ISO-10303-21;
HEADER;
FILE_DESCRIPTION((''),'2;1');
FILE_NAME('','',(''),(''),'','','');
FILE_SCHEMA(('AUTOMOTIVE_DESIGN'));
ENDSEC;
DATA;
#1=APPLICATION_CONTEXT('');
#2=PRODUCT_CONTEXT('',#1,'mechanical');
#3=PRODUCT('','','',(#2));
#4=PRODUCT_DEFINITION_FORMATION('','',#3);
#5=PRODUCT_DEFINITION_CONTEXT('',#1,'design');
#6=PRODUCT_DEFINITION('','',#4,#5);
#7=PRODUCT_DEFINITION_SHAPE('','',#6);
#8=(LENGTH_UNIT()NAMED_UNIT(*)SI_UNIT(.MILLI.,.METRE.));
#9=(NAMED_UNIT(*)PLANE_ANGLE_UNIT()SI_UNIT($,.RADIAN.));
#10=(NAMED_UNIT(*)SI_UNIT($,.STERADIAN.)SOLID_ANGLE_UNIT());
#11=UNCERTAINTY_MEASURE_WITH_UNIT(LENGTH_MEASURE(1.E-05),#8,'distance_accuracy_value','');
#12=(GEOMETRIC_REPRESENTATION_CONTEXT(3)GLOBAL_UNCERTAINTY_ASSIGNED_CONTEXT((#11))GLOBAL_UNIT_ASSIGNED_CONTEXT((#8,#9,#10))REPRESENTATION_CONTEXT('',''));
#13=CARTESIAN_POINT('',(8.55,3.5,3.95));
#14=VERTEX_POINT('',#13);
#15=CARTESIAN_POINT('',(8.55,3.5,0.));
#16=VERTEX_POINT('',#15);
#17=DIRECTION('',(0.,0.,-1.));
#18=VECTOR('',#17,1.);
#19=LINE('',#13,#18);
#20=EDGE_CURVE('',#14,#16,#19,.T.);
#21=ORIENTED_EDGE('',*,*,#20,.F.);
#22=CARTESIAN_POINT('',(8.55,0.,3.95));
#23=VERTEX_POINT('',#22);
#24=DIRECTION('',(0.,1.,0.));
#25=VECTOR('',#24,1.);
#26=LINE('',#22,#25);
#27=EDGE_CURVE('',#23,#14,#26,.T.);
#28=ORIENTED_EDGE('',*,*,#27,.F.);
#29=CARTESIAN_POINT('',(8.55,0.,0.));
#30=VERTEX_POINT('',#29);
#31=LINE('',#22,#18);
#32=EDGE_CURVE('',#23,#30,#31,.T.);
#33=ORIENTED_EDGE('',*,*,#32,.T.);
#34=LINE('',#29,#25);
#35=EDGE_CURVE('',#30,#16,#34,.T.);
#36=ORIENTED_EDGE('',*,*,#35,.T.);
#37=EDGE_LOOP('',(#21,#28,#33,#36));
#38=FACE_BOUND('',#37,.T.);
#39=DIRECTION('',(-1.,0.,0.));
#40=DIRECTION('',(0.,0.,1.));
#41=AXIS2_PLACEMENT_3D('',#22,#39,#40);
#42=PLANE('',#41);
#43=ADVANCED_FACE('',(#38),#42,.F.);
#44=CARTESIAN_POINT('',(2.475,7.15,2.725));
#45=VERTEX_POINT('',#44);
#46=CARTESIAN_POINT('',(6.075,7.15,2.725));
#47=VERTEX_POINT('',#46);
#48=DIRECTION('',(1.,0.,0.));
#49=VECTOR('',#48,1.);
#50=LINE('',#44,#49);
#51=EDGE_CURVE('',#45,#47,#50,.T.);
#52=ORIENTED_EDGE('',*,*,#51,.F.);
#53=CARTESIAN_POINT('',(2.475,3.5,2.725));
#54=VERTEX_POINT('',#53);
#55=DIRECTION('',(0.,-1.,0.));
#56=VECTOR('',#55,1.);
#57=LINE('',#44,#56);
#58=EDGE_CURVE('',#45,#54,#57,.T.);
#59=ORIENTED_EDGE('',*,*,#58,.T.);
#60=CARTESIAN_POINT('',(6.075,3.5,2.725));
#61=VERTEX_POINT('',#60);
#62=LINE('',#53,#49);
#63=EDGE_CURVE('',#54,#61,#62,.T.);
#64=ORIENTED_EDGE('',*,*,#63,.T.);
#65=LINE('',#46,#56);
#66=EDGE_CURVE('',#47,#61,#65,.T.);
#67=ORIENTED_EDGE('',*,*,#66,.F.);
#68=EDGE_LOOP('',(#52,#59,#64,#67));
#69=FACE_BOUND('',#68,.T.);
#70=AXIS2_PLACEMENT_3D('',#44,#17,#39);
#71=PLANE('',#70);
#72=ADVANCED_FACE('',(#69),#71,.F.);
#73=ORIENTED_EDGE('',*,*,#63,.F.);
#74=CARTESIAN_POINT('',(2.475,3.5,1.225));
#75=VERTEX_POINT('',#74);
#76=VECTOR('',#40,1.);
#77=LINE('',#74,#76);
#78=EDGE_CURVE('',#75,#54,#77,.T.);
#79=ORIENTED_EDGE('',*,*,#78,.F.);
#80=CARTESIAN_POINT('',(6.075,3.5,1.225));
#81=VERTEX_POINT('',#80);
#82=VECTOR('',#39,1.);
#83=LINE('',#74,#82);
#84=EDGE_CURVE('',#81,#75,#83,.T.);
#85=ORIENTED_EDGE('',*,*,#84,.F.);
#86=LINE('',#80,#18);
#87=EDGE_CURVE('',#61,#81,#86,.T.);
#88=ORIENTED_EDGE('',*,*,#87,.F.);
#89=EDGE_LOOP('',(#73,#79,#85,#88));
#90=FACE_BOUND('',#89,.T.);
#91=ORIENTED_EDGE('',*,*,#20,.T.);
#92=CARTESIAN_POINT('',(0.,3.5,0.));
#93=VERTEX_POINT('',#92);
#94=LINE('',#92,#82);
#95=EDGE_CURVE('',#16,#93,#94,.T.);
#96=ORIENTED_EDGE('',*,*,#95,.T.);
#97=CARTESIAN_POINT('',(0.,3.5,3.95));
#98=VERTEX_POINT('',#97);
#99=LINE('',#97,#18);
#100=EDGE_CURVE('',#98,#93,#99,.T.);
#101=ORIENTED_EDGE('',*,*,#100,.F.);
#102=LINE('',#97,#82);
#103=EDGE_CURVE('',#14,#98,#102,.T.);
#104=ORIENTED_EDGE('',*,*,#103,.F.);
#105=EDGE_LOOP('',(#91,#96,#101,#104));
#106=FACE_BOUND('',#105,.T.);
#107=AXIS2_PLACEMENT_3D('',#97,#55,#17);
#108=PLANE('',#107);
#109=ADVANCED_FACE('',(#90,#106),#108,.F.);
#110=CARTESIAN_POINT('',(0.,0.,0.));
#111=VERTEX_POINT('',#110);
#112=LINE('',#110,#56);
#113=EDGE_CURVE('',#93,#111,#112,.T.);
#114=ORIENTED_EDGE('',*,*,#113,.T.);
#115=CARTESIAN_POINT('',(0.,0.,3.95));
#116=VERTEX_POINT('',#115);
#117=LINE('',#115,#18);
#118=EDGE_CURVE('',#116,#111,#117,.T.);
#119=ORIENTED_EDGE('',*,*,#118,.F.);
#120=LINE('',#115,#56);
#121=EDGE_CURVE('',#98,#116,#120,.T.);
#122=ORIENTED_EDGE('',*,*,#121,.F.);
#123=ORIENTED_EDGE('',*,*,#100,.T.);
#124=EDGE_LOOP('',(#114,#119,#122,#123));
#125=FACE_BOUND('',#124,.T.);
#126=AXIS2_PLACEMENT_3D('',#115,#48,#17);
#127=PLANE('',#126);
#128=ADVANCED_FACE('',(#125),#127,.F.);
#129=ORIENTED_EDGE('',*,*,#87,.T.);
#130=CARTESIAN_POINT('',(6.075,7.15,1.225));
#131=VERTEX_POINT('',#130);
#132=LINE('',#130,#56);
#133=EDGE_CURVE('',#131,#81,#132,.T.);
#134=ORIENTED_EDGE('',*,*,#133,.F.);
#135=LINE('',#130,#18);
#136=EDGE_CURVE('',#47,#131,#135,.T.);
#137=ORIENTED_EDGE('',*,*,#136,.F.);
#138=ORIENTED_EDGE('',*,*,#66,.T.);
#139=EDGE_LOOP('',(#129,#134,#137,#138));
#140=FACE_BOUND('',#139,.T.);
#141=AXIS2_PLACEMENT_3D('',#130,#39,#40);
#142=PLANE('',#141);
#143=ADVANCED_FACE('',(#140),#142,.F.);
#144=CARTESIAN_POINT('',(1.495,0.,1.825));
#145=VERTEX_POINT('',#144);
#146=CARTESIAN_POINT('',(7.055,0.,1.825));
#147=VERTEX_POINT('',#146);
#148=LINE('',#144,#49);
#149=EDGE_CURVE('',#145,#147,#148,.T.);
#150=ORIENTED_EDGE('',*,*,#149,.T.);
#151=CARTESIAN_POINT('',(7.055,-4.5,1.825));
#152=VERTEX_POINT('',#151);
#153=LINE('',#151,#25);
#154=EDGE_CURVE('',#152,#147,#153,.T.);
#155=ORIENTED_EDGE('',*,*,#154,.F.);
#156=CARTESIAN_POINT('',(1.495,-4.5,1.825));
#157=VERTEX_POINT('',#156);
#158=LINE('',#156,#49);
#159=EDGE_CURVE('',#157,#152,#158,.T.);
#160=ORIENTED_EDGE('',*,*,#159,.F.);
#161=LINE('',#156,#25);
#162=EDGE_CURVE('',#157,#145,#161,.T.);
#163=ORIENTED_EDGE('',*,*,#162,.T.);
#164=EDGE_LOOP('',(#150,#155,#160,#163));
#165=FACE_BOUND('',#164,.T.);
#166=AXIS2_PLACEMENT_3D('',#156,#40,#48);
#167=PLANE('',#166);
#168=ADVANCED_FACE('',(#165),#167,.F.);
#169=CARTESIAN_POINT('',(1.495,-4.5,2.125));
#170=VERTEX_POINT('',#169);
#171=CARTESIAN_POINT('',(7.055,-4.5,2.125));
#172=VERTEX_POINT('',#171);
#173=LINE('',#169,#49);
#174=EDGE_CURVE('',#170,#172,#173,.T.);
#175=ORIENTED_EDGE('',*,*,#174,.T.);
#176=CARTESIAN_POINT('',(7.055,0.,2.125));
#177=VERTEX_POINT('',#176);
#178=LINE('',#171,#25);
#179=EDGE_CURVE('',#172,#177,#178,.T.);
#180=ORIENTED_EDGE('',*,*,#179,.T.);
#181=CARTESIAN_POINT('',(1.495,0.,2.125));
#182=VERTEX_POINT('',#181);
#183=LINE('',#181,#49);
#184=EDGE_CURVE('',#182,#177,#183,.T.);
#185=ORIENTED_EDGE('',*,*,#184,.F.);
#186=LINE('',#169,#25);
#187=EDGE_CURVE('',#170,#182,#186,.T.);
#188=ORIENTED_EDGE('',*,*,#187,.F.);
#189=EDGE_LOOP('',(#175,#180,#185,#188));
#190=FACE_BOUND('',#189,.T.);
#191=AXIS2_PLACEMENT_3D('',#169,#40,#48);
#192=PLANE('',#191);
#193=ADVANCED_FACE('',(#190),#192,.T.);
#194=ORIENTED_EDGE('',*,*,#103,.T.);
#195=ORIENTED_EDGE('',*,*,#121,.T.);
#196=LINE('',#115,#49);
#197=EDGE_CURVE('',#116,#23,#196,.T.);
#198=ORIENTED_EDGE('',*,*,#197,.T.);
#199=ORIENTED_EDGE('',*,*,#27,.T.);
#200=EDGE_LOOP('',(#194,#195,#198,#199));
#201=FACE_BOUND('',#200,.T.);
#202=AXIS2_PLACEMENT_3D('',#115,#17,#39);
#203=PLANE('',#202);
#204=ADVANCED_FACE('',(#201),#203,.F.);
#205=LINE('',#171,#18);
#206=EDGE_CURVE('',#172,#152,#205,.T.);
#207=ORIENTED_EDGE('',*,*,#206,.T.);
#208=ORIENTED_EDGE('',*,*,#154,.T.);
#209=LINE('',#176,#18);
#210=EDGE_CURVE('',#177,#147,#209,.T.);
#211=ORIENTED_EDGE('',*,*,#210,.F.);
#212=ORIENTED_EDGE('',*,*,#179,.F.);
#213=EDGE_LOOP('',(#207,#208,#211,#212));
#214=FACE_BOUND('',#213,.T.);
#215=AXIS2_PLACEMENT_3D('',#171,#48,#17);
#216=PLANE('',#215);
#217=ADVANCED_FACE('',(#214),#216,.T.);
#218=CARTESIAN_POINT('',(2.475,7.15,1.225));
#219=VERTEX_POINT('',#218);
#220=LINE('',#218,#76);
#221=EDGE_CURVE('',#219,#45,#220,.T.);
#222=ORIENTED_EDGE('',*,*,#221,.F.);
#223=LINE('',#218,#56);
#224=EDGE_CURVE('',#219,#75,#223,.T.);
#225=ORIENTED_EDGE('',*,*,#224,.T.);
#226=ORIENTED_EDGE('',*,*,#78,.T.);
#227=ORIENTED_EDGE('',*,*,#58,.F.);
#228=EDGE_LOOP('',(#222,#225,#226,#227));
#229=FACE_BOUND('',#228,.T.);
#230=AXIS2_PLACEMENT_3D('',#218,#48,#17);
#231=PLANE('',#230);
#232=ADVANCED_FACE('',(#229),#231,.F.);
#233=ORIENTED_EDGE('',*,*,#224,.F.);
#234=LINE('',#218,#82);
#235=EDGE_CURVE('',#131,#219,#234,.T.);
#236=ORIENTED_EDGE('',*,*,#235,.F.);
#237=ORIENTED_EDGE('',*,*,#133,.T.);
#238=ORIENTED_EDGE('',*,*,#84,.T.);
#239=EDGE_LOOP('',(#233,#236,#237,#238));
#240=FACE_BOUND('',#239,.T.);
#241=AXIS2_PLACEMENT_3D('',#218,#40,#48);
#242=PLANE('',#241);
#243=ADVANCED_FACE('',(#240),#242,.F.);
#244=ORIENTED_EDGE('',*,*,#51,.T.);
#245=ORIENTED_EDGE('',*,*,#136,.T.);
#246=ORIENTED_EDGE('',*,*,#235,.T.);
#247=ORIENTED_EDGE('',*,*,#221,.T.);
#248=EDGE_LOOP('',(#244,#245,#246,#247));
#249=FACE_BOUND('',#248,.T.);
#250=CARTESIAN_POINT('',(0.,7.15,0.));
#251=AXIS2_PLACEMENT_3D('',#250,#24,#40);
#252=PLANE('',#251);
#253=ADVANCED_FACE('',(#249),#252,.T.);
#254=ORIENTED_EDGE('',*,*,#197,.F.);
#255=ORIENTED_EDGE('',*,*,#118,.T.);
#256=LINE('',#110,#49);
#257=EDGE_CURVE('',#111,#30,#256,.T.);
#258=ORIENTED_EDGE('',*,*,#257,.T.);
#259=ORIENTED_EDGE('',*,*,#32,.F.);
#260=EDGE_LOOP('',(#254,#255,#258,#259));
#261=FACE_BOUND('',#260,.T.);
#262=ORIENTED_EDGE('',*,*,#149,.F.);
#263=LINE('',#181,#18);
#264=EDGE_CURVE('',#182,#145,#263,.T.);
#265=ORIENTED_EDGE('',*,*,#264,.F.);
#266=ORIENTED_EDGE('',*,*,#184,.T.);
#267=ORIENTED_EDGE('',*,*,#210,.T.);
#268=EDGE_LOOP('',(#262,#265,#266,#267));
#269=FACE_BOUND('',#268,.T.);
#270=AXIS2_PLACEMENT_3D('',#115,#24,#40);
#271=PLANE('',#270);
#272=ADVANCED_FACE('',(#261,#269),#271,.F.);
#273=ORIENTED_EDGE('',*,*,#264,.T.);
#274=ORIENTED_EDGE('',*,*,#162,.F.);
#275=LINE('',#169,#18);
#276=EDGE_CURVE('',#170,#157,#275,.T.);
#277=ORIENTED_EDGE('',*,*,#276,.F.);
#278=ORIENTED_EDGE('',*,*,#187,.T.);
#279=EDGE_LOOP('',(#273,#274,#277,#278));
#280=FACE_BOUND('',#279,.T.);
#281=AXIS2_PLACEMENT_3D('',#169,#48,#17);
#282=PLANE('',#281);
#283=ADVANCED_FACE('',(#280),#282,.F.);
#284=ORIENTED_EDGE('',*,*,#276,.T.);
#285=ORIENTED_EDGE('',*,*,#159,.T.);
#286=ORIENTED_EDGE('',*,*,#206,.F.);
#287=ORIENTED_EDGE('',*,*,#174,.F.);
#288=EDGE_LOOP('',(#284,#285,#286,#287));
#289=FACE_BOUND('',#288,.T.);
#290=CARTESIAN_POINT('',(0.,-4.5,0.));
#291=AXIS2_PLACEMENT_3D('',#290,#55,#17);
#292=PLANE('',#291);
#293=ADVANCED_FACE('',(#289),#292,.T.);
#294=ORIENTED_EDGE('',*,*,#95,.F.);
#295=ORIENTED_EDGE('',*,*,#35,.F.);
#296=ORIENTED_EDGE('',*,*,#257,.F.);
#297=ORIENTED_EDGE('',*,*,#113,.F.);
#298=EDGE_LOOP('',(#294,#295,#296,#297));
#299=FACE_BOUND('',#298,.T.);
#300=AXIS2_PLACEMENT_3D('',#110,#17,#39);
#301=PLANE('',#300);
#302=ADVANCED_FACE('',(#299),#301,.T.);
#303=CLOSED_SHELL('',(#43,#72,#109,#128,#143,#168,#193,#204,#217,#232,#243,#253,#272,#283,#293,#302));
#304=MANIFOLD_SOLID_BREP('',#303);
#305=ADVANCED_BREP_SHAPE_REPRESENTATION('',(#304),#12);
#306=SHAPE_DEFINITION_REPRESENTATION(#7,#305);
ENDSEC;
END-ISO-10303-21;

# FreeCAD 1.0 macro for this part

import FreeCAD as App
import Part
import Sketcher

doc = App.newDocument("Part")
params = doc.addObject("Spreadsheet::Sheet", "Params")
for row, (alias, value) in enumerate([
    ("sketch1_height", "3.5 mm"),
    ("sketch1_width", "8.55 mm"),
    ("pad1_length", "3.95 mm"),
    ("sketch2_width", "3.6 mm"),
    ("sketch2_height", "1.5 mm"),
    ("pad2_length", "3.65 mm"),
    ("sketch3_height", "0.3 mm"),
    ("sketch3_width", "5.56 mm"),
    ("pad3_length", "4.5 mm"),
], start=1):
    params.set(f"A{row}", alias)
    params.set(f"B{row}", "=" + value)
    params.setAlias(f"B{row}", alias)

body = doc.addObject("PartDesign::Body", "Body")

sketch1 = body.newObject("Sketcher::SketchObject", "Sketch")
sketch1.AttachmentSupport = (doc.getObject("XY_Plane"), [""])
sketch1.MapMode = "FlatFace"
sketch1.addGeometry(Part.LineSegment(App.Vector(0, 3.5, 0), App.Vector(0, 0, 0)), False)
sketch1.addGeometry(Part.LineSegment(App.Vector(0, 0, 0), App.Vector(8.55, 0, 0)), False)
sketch1.addGeometry(Part.LineSegment(App.Vector(8.55, 0, 0), App.Vector(8.55, 3.5, 0)), False)
sketch1.addGeometry(Part.LineSegment(App.Vector(8.55, 3.5, 0), App.Vector(0, 3.5, 0)), False)
sketch1.addConstraint(Sketcher.Constraint("Coincident", 0, 2, 1, 1))
sketch1.addConstraint(Sketcher.Constraint("Coincident", 1, 2, 2, 1))
sketch1.addConstraint(Sketcher.Constraint("Coincident", 2, 2, 3, 1))
sketch1.addConstraint(Sketcher.Constraint("Coincident", 3, 2, 0, 1))
sketch1.addConstraint(Sketcher.Constraint("Vertical", 0))
sketch1.addConstraint(Sketcher.Constraint("Horizontal", 1))
sketch1.addConstraint(Sketcher.Constraint("Vertical", 2))
sketch1.addConstraint(Sketcher.Constraint("Horizontal", 3))
sketch1.addConstraint(Sketcher.Constraint("Coincident", 0, 2, -1, 1))
sketch1.addConstraint(Sketcher.Constraint("DistanceY", 0, 2, 0, 1, 3.5))
sketch1.addConstraint(Sketcher.Constraint("DistanceX", 1, 1, 1, 2, 8.55))
sketch1.setExpression("Constraints[9]", "Params.sketch1_height")
sketch1.setExpression("Constraints[10]", "Params.sketch1_width")
pad1 = body.newObject("PartDesign::Pad", "Pad")
pad1.Profile = sketch1
pad1.setExpression("Length", "Params.pad1_length")

sketch2 = body.newObject("Sketcher::SketchObject", "Sketch001")
sketch2.AttachmentSupport = (doc.getObject("XZ_Plane"), [""])
sketch2.MapMode = "FlatFace"
sketch2.AttachmentOffset = App.Placement(App.Vector(0, 0, -3.5), App.Rotation())
sketch2.addGeometry(Part.LineSegment(App.Vector(2.475, 1.225, 0), App.Vector(2.475, 2.725, 0)), False)
sketch2.addGeometry(Part.LineSegment(App.Vector(2.475, 2.725, 0), App.Vector(6.075, 2.725, 0)), False)
sketch2.addGeometry(Part.LineSegment(App.Vector(6.075, 2.725, 0), App.Vector(6.075, 1.225, 0)), False)
sketch2.addGeometry(Part.LineSegment(App.Vector(6.075, 1.225, 0), App.Vector(2.475, 1.225, 0)), False)
sketch2.addConstraint(Sketcher.Constraint("Coincident", 0, 2, 1, 1))
sketch2.addConstraint(Sketcher.Constraint("Coincident", 1, 2, 2, 1))
sketch2.addConstraint(Sketcher.Constraint("Coincident", 2, 2, 3, 1))
sketch2.addConstraint(Sketcher.Constraint("Coincident", 3, 2, 0, 1))
sketch2.addConstraint(Sketcher.Constraint("Vertical", 0))
sketch2.addConstraint(Sketcher.Constraint("Horizontal", 1))
sketch2.addConstraint(Sketcher.Constraint("Vertical", 2))
sketch2.addConstraint(Sketcher.Constraint("Horizontal", 3))
sketch2.addConstraint(Sketcher.Constraint("DistanceX", 1, 1, 1, 2, 3.6))
sketch2.addConstraint(Sketcher.Constraint("DistanceY", 0, 1, 0, 2, 1.5))
sketch2.addConstraint(Sketcher.Constraint("DistanceX", -1, 1, 0, 2, 2.475))
sketch2.addConstraint(Sketcher.Constraint("DistanceY", -1, 1, 0, 2, 2.725))
sketch2.setExpression("Constraints[8]", "Params.sketch2_width")
sketch2.setExpression("Constraints[9]", "Params.sketch2_height")
pad2 = body.newObject("PartDesign::Pad", "Pad001")
pad2.Profile = sketch2
pad2.setExpression("Length", "Params.pad2_length")
pad2.Reversed = True

sketch3 = body.newObject("Sketcher::SketchObject", "Sketch002")
sketch3.AttachmentSupport = (doc.getObject("XZ_Plane"), [""])
sketch3.MapMode = "FlatFace"
sketch3.addGeometry(Part.LineSegment(App.Vector(1.495, 2.125, 0), App.Vector(1.495, 1.825, 0)), False)
sketch3.addGeometry(Part.LineSegment(App.Vector(1.495, 1.825, 0), App.Vector(7.055, 1.825, 0)), False)
sketch3.addGeometry(Part.LineSegment(App.Vector(7.055, 1.825, 0), App.Vector(7.055, 2.125, 0)), False)
sketch3.addGeometry(Part.LineSegment(App.Vector(7.055, 2.125, 0), App.Vector(1.495, 2.125, 0)), False)
sketch3.addConstraint(Sketcher.Constraint("Coincident", 0, 2, 1, 1))
sketch3.addConstraint(Sketcher.Constraint("Coincident", 1, 2, 2, 1))
sketch3.addConstraint(Sketcher.Constraint("Coincident", 2, 2, 3, 1))
sketch3.addConstraint(Sketcher.Constraint("Coincident", 3, 2, 0, 1))
sketch3.addConstraint(Sketcher.Constraint("Vertical", 0))
sketch3.addConstraint(Sketcher.Constraint("Horizontal", 1))
sketch3.addConstraint(Sketcher.Constraint("Vertical", 2))
sketch3.addConstraint(Sketcher.Constraint("Horizontal", 3))
sketch3.addConstraint(Sketcher.Constraint("DistanceY", 0, 2, 0, 1, 0.3))
sketch3.addConstraint(Sketcher.Constraint("DistanceX", 1, 1, 1, 2, 5.56))
sketch3.addConstraint(Sketcher.Constraint("DistanceX", -1, 1, 0, 2, 1.495))
sketch3.addConstraint(Sketcher.Constraint("DistanceY", -1, 1, 0, 2, 1.825))
sketch3.setExpression("Constraints[8]", "Params.sketch3_height")
sketch3.setExpression("Constraints[9]", "Params.sketch3_width")
pad3 = body.newObject("PartDesign::Pad", "Pad002")
pad3.Profile = sketch3
pad3.setExpression("Length", "Params.pad3_length")

doc.recompute()
